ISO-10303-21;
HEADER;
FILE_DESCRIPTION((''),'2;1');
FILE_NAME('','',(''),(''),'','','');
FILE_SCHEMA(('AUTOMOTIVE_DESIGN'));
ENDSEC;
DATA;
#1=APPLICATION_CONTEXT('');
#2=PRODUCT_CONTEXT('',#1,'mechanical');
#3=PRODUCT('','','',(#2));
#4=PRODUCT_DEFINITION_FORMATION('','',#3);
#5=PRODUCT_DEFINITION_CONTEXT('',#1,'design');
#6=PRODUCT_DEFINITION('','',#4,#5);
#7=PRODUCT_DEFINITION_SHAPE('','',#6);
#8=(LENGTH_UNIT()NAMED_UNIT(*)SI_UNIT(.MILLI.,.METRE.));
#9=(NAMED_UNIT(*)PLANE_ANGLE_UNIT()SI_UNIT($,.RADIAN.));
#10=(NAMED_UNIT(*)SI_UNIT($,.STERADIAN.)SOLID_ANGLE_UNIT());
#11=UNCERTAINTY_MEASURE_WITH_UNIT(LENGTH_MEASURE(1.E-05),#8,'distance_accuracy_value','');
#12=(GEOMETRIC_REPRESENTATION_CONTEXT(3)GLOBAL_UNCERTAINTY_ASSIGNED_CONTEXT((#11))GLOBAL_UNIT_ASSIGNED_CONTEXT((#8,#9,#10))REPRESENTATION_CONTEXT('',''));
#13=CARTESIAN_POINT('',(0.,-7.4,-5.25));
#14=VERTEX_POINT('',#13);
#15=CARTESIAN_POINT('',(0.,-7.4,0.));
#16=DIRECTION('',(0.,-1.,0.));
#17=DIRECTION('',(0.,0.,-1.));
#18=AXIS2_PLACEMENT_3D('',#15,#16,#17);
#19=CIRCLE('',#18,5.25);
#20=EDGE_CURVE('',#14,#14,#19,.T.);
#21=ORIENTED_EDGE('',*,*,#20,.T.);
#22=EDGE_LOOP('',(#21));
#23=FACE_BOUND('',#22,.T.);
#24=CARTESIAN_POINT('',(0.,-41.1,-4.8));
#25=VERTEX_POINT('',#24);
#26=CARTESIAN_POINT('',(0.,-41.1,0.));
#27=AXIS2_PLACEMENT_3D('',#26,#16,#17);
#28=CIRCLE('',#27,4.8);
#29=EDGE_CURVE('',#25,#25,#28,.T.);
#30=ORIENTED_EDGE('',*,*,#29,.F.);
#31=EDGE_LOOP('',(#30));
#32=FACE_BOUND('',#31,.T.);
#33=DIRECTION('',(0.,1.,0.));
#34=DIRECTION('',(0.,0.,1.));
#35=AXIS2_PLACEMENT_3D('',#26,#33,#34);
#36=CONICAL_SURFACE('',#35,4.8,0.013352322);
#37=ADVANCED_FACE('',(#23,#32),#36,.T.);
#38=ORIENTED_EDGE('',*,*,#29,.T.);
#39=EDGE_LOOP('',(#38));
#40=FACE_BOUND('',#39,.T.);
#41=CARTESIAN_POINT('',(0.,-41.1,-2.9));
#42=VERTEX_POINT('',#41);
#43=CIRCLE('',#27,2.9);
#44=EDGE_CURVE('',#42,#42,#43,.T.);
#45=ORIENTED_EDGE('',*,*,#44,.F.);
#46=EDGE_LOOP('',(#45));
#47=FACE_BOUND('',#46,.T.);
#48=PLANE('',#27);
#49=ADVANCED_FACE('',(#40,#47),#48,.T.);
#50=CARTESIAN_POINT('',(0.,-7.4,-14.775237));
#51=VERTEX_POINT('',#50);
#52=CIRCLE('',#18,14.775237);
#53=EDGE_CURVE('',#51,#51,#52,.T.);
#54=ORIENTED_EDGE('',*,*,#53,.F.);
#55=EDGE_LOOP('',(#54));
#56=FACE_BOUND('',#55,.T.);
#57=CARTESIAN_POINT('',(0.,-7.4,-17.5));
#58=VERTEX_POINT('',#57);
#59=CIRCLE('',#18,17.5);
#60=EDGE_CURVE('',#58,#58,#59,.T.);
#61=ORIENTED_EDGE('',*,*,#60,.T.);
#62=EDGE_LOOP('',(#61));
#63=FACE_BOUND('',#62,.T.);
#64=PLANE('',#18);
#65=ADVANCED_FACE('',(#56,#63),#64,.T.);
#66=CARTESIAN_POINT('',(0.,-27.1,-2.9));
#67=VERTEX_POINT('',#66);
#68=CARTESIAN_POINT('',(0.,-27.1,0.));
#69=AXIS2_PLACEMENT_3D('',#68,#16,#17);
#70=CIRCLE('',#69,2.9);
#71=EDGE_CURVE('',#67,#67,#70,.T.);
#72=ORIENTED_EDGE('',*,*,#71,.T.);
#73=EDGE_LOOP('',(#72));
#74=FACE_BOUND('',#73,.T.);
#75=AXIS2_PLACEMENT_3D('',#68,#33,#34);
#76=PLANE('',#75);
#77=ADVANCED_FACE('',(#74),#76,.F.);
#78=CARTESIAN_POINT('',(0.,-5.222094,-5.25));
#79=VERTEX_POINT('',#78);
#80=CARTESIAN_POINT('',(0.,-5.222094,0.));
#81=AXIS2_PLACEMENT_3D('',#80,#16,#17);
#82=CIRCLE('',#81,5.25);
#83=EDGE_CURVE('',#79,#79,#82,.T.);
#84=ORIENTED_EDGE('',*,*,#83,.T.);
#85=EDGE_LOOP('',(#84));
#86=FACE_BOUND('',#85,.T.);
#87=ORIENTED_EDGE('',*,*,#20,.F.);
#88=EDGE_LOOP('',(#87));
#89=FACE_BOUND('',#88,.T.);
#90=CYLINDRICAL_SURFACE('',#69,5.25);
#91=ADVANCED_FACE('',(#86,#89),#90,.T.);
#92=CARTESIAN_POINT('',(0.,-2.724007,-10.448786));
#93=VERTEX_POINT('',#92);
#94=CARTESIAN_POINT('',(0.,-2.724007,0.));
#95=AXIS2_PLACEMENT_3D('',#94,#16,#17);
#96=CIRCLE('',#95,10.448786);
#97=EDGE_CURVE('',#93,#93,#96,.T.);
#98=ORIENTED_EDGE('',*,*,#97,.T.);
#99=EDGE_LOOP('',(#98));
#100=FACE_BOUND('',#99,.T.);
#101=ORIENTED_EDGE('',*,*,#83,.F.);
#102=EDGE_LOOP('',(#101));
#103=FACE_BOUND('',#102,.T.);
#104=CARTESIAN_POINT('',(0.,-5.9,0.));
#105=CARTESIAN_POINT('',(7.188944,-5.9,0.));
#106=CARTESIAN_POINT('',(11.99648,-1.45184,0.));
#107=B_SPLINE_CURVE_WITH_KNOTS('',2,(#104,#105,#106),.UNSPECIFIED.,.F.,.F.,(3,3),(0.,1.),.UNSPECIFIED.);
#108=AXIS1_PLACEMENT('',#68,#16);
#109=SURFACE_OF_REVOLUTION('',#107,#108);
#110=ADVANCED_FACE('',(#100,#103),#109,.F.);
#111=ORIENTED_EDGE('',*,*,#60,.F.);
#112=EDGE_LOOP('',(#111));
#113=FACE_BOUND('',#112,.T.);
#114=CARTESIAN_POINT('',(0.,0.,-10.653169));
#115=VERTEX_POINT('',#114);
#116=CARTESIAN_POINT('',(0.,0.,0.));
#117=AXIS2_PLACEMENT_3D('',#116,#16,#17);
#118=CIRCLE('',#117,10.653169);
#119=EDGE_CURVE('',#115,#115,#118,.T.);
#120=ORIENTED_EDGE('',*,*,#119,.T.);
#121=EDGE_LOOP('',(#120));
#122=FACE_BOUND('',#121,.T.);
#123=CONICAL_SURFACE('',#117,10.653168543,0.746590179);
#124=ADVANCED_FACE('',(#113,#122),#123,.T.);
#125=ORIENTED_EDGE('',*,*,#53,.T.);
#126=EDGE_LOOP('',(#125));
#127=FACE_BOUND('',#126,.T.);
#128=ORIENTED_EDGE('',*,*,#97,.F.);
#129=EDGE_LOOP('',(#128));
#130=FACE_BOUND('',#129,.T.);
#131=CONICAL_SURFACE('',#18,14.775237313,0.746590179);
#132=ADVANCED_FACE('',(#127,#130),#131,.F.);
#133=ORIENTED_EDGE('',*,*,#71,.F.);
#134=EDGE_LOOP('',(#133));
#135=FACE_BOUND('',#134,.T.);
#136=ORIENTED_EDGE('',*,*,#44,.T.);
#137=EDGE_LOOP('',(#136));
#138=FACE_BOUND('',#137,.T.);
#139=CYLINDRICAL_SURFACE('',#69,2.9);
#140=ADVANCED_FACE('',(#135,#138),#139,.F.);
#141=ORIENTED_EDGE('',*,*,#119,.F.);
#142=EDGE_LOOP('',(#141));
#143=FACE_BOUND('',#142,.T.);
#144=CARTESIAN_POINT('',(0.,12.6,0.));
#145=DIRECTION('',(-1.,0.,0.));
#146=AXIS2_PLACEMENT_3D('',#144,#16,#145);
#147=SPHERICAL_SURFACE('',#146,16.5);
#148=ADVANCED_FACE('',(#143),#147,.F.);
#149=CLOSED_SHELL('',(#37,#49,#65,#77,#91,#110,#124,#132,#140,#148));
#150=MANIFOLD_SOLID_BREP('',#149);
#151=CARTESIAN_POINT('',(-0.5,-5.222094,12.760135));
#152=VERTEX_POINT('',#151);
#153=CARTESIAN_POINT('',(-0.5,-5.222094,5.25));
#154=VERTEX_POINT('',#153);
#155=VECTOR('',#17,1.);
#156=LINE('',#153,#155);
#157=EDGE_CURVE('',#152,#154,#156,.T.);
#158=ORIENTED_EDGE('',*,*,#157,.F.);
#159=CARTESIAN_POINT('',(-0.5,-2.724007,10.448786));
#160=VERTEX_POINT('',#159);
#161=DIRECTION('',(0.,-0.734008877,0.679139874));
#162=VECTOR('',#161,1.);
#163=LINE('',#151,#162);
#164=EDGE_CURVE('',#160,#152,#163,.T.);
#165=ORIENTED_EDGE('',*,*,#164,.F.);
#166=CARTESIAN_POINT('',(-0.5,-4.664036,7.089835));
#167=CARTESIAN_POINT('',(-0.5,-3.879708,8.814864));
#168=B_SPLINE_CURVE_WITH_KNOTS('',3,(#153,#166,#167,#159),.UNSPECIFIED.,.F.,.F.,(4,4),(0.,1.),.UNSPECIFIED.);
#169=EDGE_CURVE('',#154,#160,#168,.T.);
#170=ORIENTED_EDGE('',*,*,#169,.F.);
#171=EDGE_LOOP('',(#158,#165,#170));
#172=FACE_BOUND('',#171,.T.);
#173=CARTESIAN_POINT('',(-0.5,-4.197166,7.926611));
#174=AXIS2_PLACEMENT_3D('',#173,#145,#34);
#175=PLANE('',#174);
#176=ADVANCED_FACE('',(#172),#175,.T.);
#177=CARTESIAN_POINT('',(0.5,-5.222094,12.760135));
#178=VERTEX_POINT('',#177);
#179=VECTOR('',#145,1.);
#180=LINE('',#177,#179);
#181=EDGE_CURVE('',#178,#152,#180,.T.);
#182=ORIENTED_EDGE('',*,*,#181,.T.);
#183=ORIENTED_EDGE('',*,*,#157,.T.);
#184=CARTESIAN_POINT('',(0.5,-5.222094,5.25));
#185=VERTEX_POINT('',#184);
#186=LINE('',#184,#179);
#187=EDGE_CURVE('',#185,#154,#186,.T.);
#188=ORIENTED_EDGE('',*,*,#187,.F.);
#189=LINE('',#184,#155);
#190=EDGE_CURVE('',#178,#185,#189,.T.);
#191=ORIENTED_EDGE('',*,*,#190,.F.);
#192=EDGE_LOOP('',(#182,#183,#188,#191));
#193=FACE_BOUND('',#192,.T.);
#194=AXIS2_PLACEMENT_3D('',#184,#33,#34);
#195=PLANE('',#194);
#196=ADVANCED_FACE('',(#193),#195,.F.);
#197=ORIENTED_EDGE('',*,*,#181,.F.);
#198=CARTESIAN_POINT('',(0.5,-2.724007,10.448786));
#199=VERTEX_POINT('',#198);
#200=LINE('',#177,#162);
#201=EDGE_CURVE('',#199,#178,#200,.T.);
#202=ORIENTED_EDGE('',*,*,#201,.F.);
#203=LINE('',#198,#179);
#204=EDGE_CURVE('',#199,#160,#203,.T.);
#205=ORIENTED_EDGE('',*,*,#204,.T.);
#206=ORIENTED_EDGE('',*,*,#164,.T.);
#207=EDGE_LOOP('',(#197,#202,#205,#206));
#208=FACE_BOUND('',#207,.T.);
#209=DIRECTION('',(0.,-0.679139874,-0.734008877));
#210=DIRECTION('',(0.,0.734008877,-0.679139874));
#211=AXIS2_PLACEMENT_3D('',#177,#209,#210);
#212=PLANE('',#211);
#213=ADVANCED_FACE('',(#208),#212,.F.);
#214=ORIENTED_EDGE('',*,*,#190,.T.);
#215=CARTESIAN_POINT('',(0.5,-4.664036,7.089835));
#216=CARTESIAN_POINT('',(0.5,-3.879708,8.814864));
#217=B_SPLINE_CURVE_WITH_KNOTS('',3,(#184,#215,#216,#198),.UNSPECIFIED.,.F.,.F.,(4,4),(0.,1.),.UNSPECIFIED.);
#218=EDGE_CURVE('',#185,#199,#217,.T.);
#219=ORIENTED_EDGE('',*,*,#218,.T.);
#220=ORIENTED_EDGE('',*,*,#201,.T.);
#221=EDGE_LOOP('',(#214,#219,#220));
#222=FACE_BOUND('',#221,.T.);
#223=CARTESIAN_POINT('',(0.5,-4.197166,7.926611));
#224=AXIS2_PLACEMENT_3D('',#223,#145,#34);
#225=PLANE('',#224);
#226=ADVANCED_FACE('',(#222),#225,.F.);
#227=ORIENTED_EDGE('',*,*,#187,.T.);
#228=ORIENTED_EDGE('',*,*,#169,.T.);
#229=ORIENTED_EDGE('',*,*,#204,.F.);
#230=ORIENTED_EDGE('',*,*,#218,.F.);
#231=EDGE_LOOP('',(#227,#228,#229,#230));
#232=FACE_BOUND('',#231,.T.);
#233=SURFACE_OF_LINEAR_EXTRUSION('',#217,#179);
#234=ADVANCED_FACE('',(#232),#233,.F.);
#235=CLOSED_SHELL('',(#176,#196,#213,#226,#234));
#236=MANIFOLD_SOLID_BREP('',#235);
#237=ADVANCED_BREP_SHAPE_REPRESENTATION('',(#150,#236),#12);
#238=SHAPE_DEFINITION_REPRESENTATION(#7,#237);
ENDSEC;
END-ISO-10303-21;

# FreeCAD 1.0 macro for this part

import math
import FreeCAD as App
import Part
import Sketcher
from FreeCAD import Vector

doc = App.newDocument("Part")
body = doc.addObject("PartDesign::Body", "Body")

# Sketch on XY plane
sketch1 = body.newObject("Sketcher::SketchObject", "Sketch")
sketch1.AttachmentSupport = (doc.getObject("XY_Plane"), [""])
sketch1.MapMode = "FlatFace"
sketch1.addGeometry([
    Part.LineSegment(Vector(2.9, -27.1, 0), Vector(2.9, -41.1, 0)),  # 0
    Part.LineSegment(Vector(2.9, -41.1, 0), Vector(4.8, -41.1, 0)),  # 1
    Part.LineSegment(Vector(4.8, -41.1, 0), Vector(5.25, -7.4, 0)),  # 2
    Part.LineSegment(Vector(5.25, -7.4, 0), Vector(5.25, -5.222094, 0)),  # 3
    Part.BSplineCurve([Vector(5.25, -5.222094, 0), Vector(8.095465, -4.432681, 0), Vector(10.448786, -2.724007, 0)], [3, 3], [0.39038626, 0.844986099], False, 2, [1, 1, 1], False),  # 4
    Part.LineSegment(Vector(10.448786, -2.724007, 0), Vector(14.775237, -7.4, 0)),  # 5
    Part.LineSegment(Vector(14.775237, -7.4, 0), Vector(17.5, -7.4, 0)),  # 6
    Part.LineSegment(Vector(17.5, -7.4, 0), Vector(10.653169, 0, 0)),  # 7
    Part.ArcOfCircle(Part.Circle(Vector(0, 12.6, 0), Vector(0, 0, 1), 16.5), math.radians(-90), math.radians(-49.785829)),  # 8
    Part.LineSegment(Vector(0, -3.9, 0), Vector(0, -27.1, 0)),  # 9
    Part.LineSegment(Vector(0, -27.1, 0), Vector(2.9, -27.1, 0)),  # 10
], False)
sketch1.addConstraint([
    Sketcher.Constraint("Block", 4),
    Sketcher.Constraint("Coincident", 0, 2, 1, 1),
    Sketcher.Constraint("Coincident", 1, 2, 2, 1),
    Sketcher.Constraint("Coincident", 2, 2, 3, 1),
    Sketcher.Constraint("Coincident", 3, 2, 4, 1),
    Sketcher.Constraint("Coincident", 4, 2, 5, 1),
    Sketcher.Constraint("Coincident", 5, 2, 6, 1),
    Sketcher.Constraint("Coincident", 6, 2, 7, 1),
    Sketcher.Constraint("Coincident", 7, 2, 8, 2),
    Sketcher.Constraint("Coincident", 8, 1, 9, 1),
    Sketcher.Constraint("Coincident", 9, 2, 10, 1),
    Sketcher.Constraint("Coincident", 10, 2, 0, 1),
    Sketcher.Constraint("Vertical", 0),
    Sketcher.Constraint("Horizontal", 1),
    Sketcher.Constraint("Vertical", 3),
    Sketcher.Constraint("Horizontal", 6),
    Sketcher.Constraint("Vertical", 9),
    Sketcher.Constraint("Horizontal", 10),
    Sketcher.Constraint("PointOnObject", 8, 3, -2),
    Sketcher.Constraint("PointOnObject", 7, 2, -1),
    Sketcher.Constraint("PointOnObject", 8, 1, -2),
    Sketcher.Constraint("Parallel", 5, 7),
    Sketcher.Constraint("Horizontal", 2, 2, 5, 2),
    Sketcher.Constraint("Radius", 8, 16.5),
    Sketcher.Constraint("DistanceY", 0, 2, 0, 1, 14.0),
    Sketcher.Constraint("DistanceX", 1, 1, 1, 2, 1.9),
    Sketcher.Constraint("DistanceX", 10, 1, 10, 2, 2.9),
    Sketcher.Constraint("DistanceY", 9, 2, 9, 1, 23.2),
    Sketcher.Constraint("DistanceY", 2, 2, 8, 3, 20.0),
    Sketcher.Constraint("DistanceY", -1, 1, 8, 3, 12.6),
    Sketcher.Constraint("DistanceX", -1, 1, 6, 2, 17.5),
])
revolution = body.newObject("PartDesign::Revolution", "Revolution")
revolution.Profile = sketch1
revolution.ReferenceAxis = (sketch1, ["V_Axis"])
revolution.Angle = 360
body2 = doc.addObject("PartDesign::Body", "Body001")

# Sketch on YZ plane
sketch2 = body2.newObject("Sketcher::SketchObject", "Sketch001")
sketch2.AttachmentSupport = (doc.getObject("YZ_Plane001"), [""])
sketch2.MapMode = "FlatFace"
sketch2.addGeometry([
    Part.LineSegment(Vector(-5.222094, 12.760135, 0), Vector(-5.222094, 5.25, 0)),
    Part.BSplineCurve([Vector(-2.724007, 10.448786, 0), Vector(-3.879708, 8.814864, 0), Vector(-4.664036, 7.089835, 0), Vector(-5.222094, 5.25, 0)], [4, 4], [0, 1], False, 3, [1, 1, 1, 1], False),
    Part.LineSegment(Vector(-2.724007, 10.448786, 0), Vector(-5.222094, 12.760135, 0)),
], False)
sketch2.addConstraint([
    Sketcher.Constraint("Block", 1),
    Sketcher.Constraint("Coincident", 0, 2, 1, 2),
    Sketcher.Constraint("Coincident", 1, 1, 2, 1),
    Sketcher.Constraint("Coincident", 2, 2, 0, 1),
    Sketcher.Constraint("Vertical", 0),
    Sketcher.Constraint("DistanceY", 0, 2, 0, 1, 7.510136),
])
pad1 = body2.newObject("PartDesign::Pad", "Pad")
pad1.Profile = sketch2
pad1.Length = 1
pad1.Midplane = True

doc.recompute()
